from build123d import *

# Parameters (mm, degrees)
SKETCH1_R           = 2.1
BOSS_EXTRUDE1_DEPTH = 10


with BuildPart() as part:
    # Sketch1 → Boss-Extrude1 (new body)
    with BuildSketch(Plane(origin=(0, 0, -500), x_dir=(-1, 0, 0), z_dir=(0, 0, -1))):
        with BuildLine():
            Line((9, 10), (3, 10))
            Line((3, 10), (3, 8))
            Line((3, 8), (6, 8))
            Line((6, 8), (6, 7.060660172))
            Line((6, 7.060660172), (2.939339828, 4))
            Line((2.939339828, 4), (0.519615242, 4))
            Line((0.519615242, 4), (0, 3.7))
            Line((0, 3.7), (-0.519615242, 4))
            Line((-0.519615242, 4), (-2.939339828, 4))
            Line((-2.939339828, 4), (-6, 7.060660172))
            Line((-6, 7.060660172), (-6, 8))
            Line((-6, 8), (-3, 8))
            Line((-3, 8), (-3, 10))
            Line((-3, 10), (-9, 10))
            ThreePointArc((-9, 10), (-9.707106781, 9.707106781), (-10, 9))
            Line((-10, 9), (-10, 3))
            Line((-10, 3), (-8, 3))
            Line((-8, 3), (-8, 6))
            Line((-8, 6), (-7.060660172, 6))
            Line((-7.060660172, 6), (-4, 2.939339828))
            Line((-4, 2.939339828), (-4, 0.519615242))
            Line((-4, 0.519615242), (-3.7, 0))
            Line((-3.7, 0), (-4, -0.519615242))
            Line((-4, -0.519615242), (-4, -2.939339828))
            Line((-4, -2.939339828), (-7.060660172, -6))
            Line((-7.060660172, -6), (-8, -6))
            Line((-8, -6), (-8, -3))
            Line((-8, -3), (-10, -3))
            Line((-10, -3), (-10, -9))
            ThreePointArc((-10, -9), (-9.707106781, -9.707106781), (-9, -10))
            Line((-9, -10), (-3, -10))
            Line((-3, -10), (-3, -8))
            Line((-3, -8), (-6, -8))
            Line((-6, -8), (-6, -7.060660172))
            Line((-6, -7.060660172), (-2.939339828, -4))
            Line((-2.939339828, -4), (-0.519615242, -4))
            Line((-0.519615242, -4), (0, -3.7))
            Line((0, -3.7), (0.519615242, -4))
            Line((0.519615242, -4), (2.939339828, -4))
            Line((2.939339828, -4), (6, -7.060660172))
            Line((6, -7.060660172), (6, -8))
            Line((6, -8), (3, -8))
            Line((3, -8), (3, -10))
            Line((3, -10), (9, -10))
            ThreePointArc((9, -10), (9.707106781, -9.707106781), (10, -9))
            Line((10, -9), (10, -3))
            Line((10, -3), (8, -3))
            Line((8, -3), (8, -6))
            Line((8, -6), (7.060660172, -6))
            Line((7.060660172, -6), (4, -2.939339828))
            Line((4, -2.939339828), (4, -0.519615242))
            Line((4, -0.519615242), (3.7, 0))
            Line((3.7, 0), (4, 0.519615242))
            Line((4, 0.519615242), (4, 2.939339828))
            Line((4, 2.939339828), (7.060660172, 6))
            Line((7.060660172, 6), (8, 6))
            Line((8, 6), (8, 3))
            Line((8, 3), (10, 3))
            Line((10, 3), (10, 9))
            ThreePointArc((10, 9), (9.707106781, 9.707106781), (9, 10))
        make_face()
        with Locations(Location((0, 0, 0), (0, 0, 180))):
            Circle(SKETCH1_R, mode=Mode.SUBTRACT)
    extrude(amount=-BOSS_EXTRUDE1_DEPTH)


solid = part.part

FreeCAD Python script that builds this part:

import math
import FreeCAD as App
import Part
import Sketcher

V = App.Vector
Q = App.Units.Quantity

doc = App.newDocument("Part")
body = doc.addObject("PartDesign::Body", "Body")

sketch1 = body.newObject("Sketcher::SketchObject", "Sketch")
sketch1.AttachmentSupport = (doc.getObject("XY_Plane"), [""])
sketch1.MapMode = "FlatFace"
sketch1.AttachmentOffset = App.Placement(V(0, 0, -500), App.Rotation())
sketch1.addGeometry(Part.LineSegment(V(-9, 10, 0), V(-3, 10, 0)), False)
sketch1.addGeometry(Part.LineSegment(V(-3, 10, 0), V(-3, 8, 0)), False)
sketch1.addGeometry(Part.LineSegment(V(-3, 8, 0), V(-6, 8, 0)), False)
sketch1.addGeometry(Part.LineSegment(V(-6, 8, 0), V(-6, 7.06066, 0)), False)
sketch1.addGeometry(Part.LineSegment(V(-6, 7.06066, 0), V(-2.93934, 4, 0)), False)
sketch1.addGeometry(Part.LineSegment(V(-2.93934, 4, 0), V(-0.519615, 4, 0)), False)
sketch1.addGeometry(Part.LineSegment(V(-0.519615, 4, 0), V(0, 3.7, 0)), False)
sketch1.addGeometry(Part.LineSegment(V(0, 3.7, 0), V(0.519615, 4, 0)), False)
sketch1.addGeometry(Part.LineSegment(V(0.519615, 4, 0), V(2.93934, 4, 0)), False)
sketch1.addGeometry(Part.LineSegment(V(2.93934, 4, 0), V(6, 7.06066, 0)), False)
sketch1.addGeometry(Part.LineSegment(V(6, 7.06066, 0), V(6, 8, 0)), False)
sketch1.addGeometry(Part.LineSegment(V(6, 8, 0), V(3, 8, 0)), False)
sketch1.addGeometry(Part.LineSegment(V(3, 8, 0), V(3, 10, 0)), False)
sketch1.addGeometry(Part.LineSegment(V(3, 10, 0), V(9, 10, 0)), False)
sketch1.addGeometry(Part.ArcOfCircle(Part.Circle(V(9, 9, 0), V(0, 0, 1), 1), math.radians(0), math.radians(90)), False)
sketch1.addGeometry(Part.LineSegment(V(10, 9, 0), V(10, 3, 0)), False)
sketch1.addGeometry(Part.LineSegment(V(10, 3, 0), V(8, 3, 0)), False)
sketch1.addGeometry(Part.LineSegment(V(8, 3, 0), V(8, 6, 0)), False)
sketch1.addGeometry(Part.LineSegment(V(8, 6, 0), V(7.06066, 6, 0)), False)
sketch1.addGeometry(Part.LineSegment(V(7.06066, 6, 0), V(4, 2.93934, 0)), False)
sketch1.addGeometry(Part.LineSegment(V(4, 2.93934, 0), V(4, 0.519615, 0)), False)
sketch1.addGeometry(Part.LineSegment(V(4, 0.519615, 0), V(3.7, 0, 0)), False)
sketch1.addGeometry(Part.LineSegment(V(3.7, 0, 0), V(4, -0.519615, 0)), False)
sketch1.addGeometry(Part.LineSegment(V(4, -0.519615, 0), V(4, -2.93934, 0)), False)
sketch1.addGeometry(Part.LineSegment(V(4, -2.93934, 0), V(7.06066, -6, 0)), False)
sketch1.addGeometry(Part.LineSegment(V(7.06066, -6, 0), V(8, -6, 0)), False)
sketch1.addGeometry(Part.LineSegment(V(8, -6, 0), V(8, -3, 0)), False)
sketch1.addGeometry(Part.LineSegment(V(8, -3, 0), V(10, -3, 0)), False)
sketch1.addGeometry(Part.LineSegment(V(10, -3, 0), V(10, -9, 0)), False)
sketch1.addGeometry(Part.ArcOfCircle(Part.Circle(V(9, -9, 0), V(0, 0, 1), 1), math.radians(-90), math.radians(0)), False)
sketch1.addGeometry(Part.LineSegment(V(9, -10, 0), V(3, -10, 0)), False)
sketch1.addGeometry(Part.LineSegment(V(3, -10, 0), V(3, -8, 0)), False)
sketch1.addGeometry(Part.LineSegment(V(3, -8, 0), V(6, -8, 0)), False)
sketch1.addGeometry(Part.LineSegment(V(6, -8, 0), V(6, -7.06066, 0)), False)
sketch1.addGeometry(Part.LineSegment(V(6, -7.06066, 0), V(2.93934, -4, 0)), False)
sketch1.addGeometry(Part.LineSegment(V(2.93934, -4, 0), V(0.519615, -4, 0)), False)
sketch1.addGeometry(Part.LineSegment(V(0.519615, -4, 0), V(0, -3.7, 0)), False)
sketch1.addGeometry(Part.LineSegment(V(0, -3.7, 0), V(-0.519615, -4, 0)), False)
sketch1.addGeometry(Part.LineSegment(V(-0.519615, -4, 0), V(-2.93934, -4, 0)), False)
sketch1.addGeometry(Part.LineSegment(V(-2.93934, -4, 0), V(-6, -7.06066, 0)), False)
sketch1.addGeometry(Part.LineSegment(V(-6, -7.06066, 0), V(-6, -8, 0)), False)
sketch1.addGeometry(Part.LineSegment(V(-6, -8, 0), V(-3, -8, 0)), False)
sketch1.addGeometry(Part.LineSegment(V(-3, -8, 0), V(-3, -10, 0)), False)
sketch1.addGeometry(Part.LineSegment(V(-3, -10, 0), V(-9, -10, 0)), False)
sketch1.addGeometry(Part.ArcOfCircle(Part.Circle(V(-9, -9, 0), V(0, 0, 1), 1), math.radians(-180), math.radians(-90)), False)
sketch1.addGeometry(Part.LineSegment(V(-10, -9, 0), V(-10, -3, 0)), False)
sketch1.addGeometry(Part.LineSegment(V(-10, -3, 0), V(-8, -3, 0)), False)
sketch1.addGeometry(Part.LineSegment(V(-8, -3, 0), V(-8, -6, 0)), False)
sketch1.addGeometry(Part.LineSegment(V(-8, -6, 0), V(-7.06066, -6, 0)), False)
sketch1.addGeometry(Part.LineSegment(V(-7.06066, -6, 0), V(-4, -2.93934, 0)), False)
sketch1.addGeometry(Part.LineSegment(V(-4, -2.93934, 0), V(-4, -0.519615, 0)), False)
sketch1.addGeometry(Part.LineSegment(V(-4, -0.519615, 0), V(-3.7, 0, 0)), False)
sketch1.addGeometry(Part.LineSegment(V(-3.7, 0, 0), V(-4, 0.519615, 0)), False)
sketch1.addGeometry(Part.LineSegment(V(-4, 0.519615, 0), V(-4, 2.93934, 0)), False)
sketch1.addGeometry(Part.LineSegment(V(-4, 2.93934, 0), V(-7.06066, 6, 0)), False)
sketch1.addGeometry(Part.LineSegment(V(-7.06066, 6, 0), V(-8, 6, 0)), False)
sketch1.addGeometry(Part.LineSegment(V(-8, 6, 0), V(-8, 3, 0)), False)
sketch1.addGeometry(Part.LineSegment(V(-8, 3, 0), V(-10, 3, 0)), False)
sketch1.addGeometry(Part.LineSegment(V(-10, 3, 0), V(-10, 9, 0)), False)
sketch1.addGeometry(Part.ArcOfCircle(Part.Circle(V(-9, 9, 0), V(0, 0, 1), 1), math.radians(90), math.radians(180)), False)
sketch1.addGeometry(Part.Circle(V(0, 0, 0), V(0, 0, 1), 2.1), False)
sketch1.addConstraint(Sketcher.Constraint("Coincident", 0, 2, 1, 1))
sketch1.addConstraint(Sketcher.Constraint("Coincident", 1, 2, 2, 1))
sketch1.addConstraint(Sketcher.Constraint("Coincident", 2, 2, 3, 1))
sketch1.addConstraint(Sketcher.Constraint("Coincident", 3, 2, 4, 1))
sketch1.addConstraint(Sketcher.Constraint("Coincident", 4, 2, 5, 1))
sketch1.addConstraint(Sketcher.Constraint("Coincident", 5, 2, 6, 1))
sketch1.addConstraint(Sketcher.Constraint("Coincident", 6, 2, 7, 1))
sketch1.addConstraint(Sketcher.Constraint("Coincident", 7, 2, 8, 1))
sketch1.addConstraint(Sketcher.Constraint("Coincident", 8, 2, 9, 1))
sketch1.addConstraint(Sketcher.Constraint("Coincident", 9, 2, 10, 1))
sketch1.addConstraint(Sketcher.Constraint("Coincident", 10, 2, 11, 1))
sketch1.addConstraint(Sketcher.Constraint("Coincident", 11, 2, 12, 1))
sketch1.addConstraint(Sketcher.Constraint("Coincident", 12, 2, 13, 1))
sketch1.addConstraint(Sketcher.Constraint("Tangent", 13, 2, 14, 2))
sketch1.addConstraint(Sketcher.Constraint("Tangent", 14, 1, 15, 1))
sketch1.addConstraint(Sketcher.Constraint("Coincident", 15, 2, 16, 1))
sketch1.addConstraint(Sketcher.Constraint("Coincident", 16, 2, 17, 1))
sketch1.addConstraint(Sketcher.Constraint("Coincident", 17, 2, 18, 1))
sketch1.addConstraint(Sketcher.Constraint("Coincident", 18, 2, 19, 1))
sketch1.addConstraint(Sketcher.Constraint("Coincident", 19, 2, 20, 1))
sketch1.addConstraint(Sketcher.Constraint("Coincident", 20, 2, 21, 1))
sketch1.addConstraint(Sketcher.Constraint("Coincident", 21, 2, 22, 1))
sketch1.addConstraint(Sketcher.Constraint("Coincident", 22, 2, 23, 1))
sketch1.addConstraint(Sketcher.Constraint("Coincident", 23, 2, 24, 1))
sketch1.addConstraint(Sketcher.Constraint("Coincident", 24, 2, 25, 1))
sketch1.addConstraint(Sketcher.Constraint("Coincident", 25, 2, 26, 1))
sketch1.addConstraint(Sketcher.Constraint("Coincident", 26, 2, 27, 1))
sketch1.addConstraint(Sketcher.Constraint("Coincident", 27, 2, 28, 1))
sketch1.addConstraint(Sketcher.Constraint("Tangent", 28, 2, 29, 2))
sketch1.addConstraint(Sketcher.Constraint("Tangent", 29, 1, 30, 1))
sketch1.addConstraint(Sketcher.Constraint("Coincident", 30, 2, 31, 1))
sketch1.addConstraint(Sketcher.Constraint("Coincident", 31, 2, 32, 1))
sketch1.addConstraint(Sketcher.Constraint("Coincident", 32, 2, 33, 1))
sketch1.addConstraint(Sketcher.Constraint("Coincident", 33, 2, 34, 1))
sketch1.addConstraint(Sketcher.Constraint("Coincident", 34, 2, 35, 1))
sketch1.addConstraint(Sketcher.Constraint("Coincident", 35, 2, 36, 1))
sketch1.addConstraint(Sketcher.Constraint("Coincident", 36, 2, 37, 1))
sketch1.addConstraint(Sketcher.Constraint("Coincident", 37, 2, 38, 1))
sketch1.addConstraint(Sketcher.Constraint("Coincident", 38, 2, 39, 1))
sketch1.addConstraint(Sketcher.Constraint("Coincident", 39, 2, 40, 1))
sketch1.addConstraint(Sketcher.Constraint("Coincident", 40, 2, 41, 1))
sketch1.addConstraint(Sketcher.Constraint("Coincident", 41, 2, 42, 1))
sketch1.addConstraint(Sketcher.Constraint("Coincident", 42, 2, 43, 1))
sketch1.addConstraint(Sketcher.Constraint("Tangent", 43, 2, 44, 2))
sketch1.addConstraint(Sketcher.Constraint("Tangent", 44, 1, 45, 1))
sketch1.addConstraint(Sketcher.Constraint("Coincident", 45, 2, 46, 1))
sketch1.addConstraint(Sketcher.Constraint("Coincident", 46, 2, 47, 1))
sketch1.addConstraint(Sketcher.Constraint("Coincident", 47, 2, 48, 1))
sketch1.addConstraint(Sketcher.Constraint("Coincident", 48, 2, 49, 1))
sketch1.addConstraint(Sketcher.Constraint("Coincident", 49, 2, 50, 1))
sketch1.addConstraint(Sketcher.Constraint("Coincident", 50, 2, 51, 1))
sketch1.addConstraint(Sketcher.Constraint("Coincident", 51, 2, 52, 1))
sketch1.addConstraint(Sketcher.Constraint("Coincident", 52, 2, 53, 1))
sketch1.addConstraint(Sketcher.Constraint("Coincident", 53, 2, 54, 1))
sketch1.addConstraint(Sketcher.Constraint("Coincident", 54, 2, 55, 1))
sketch1.addConstraint(Sketcher.Constraint("Coincident", 55, 2, 56, 1))
sketch1.addConstraint(Sketcher.Constraint("Coincident", 56, 2, 57, 1))
sketch1.addConstraint(Sketcher.Constraint("Coincident", 57, 2, 58, 1))
sketch1.addConstraint(Sketcher.Constraint("Tangent", 58, 2, 59, 2))
sketch1.addConstraint(Sketcher.Constraint("Tangent", 59, 1, 0, 1))
sketch1.addConstraint(Sketcher.Constraint("Horizontal", 0))
sketch1.addConstraint(Sketcher.Constraint("Vertical", 1))
sketch1.addConstraint(Sketcher.Constraint("Horizontal", 2))
sketch1.addConstraint(Sketcher.Constraint("Vertical", 3))
sketch1.addConstraint(Sketcher.Constraint("Horizontal", 5))
sketch1.addConstraint(Sketcher.Constraint("Horizontal", 8))
sketch1.addConstraint(Sketcher.Constraint("Vertical", 10))
sketch1.addConstraint(Sketcher.Constraint("Horizontal", 11))
sketch1.addConstraint(Sketcher.Constraint("Vertical", 12))
sketch1.addConstraint(Sketcher.Constraint("Horizontal", 13))
sketch1.addConstraint(Sketcher.Constraint("Vertical", 15))
sketch1.addConstraint(Sketcher.Constraint("Horizontal", 16))
sketch1.addConstraint(Sketcher.Constraint("Vertical", 17))
sketch1.addConstraint(Sketcher.Constraint("Horizontal", 18))
sketch1.addConstraint(Sketcher.Constraint("Vertical", 20))
sketch1.addConstraint(Sketcher.Constraint("Vertical", 23))
sketch1.addConstraint(Sketcher.Constraint("Horizontal", 25))
sketch1.addConstraint(Sketcher.Constraint("Vertical", 26))
sketch1.addConstraint(Sketcher.Constraint("Horizontal", 27))
sketch1.addConstraint(Sketcher.Constraint("Vertical", 28))
sketch1.addConstraint(Sketcher.Constraint("Horizontal", 30))
sketch1.addConstraint(Sketcher.Constraint("Vertical", 31))
sketch1.addConstraint(Sketcher.Constraint("Horizontal", 32))
sketch1.addConstraint(Sketcher.Constraint("Vertical", 33))
sketch1.addConstraint(Sketcher.Constraint("Horizontal", 35))
sketch1.addConstraint(Sketcher.Constraint("Horizontal", 38))
sketch1.addConstraint(Sketcher.Constraint("Vertical", 40))
sketch1.addConstraint(Sketcher.Constraint("Horizontal", 41))
sketch1.addConstraint(Sketcher.Constraint("Vertical", 42))
sketch1.addConstraint(Sketcher.Constraint("Horizontal", 43))
sketch1.addConstraint(Sketcher.Constraint("Vertical", 45))
sketch1.addConstraint(Sketcher.Constraint("Horizontal", 46))
sketch1.addConstraint(Sketcher.Constraint("Vertical", 47))
sketch1.addConstraint(Sketcher.Constraint("Horizontal", 48))
sketch1.addConstraint(Sketcher.Constraint("Vertical", 50))
sketch1.addConstraint(Sketcher.Constraint("Vertical", 53))
sketch1.addConstraint(Sketcher.Constraint("Horizontal", 55))
sketch1.addConstraint(Sketcher.Constraint("Vertical", 56))
sketch1.addConstraint(Sketcher.Constraint("Horizontal", 57))
sketch1.addConstraint(Sketcher.Constraint("Vertical", 58))
sketch1.addConstraint(Sketcher.Constraint("Coincident", 60, 3, -1, 1))
sketch1.addConstraint(Sketcher.Constraint("Equal", 14, 29))
sketch1.addConstraint(Sketcher.Constraint("Equal", 29, 44))
sketch1.addConstraint(Sketcher.Constraint("Equal", 44, 59))
sketch1.addConstraint(Sketcher.Constraint("Symmetric", 14, 3, 44, 3, -1, 1))
sketch1.addConstraint(Sketcher.Constraint("Symmetric", 29, 3, 59, 3, -1, 1))
sketch1.addConstraint(Sketcher.Constraint("Symmetric", 1, 2, 31, 2, -1, 1))
sketch1.addConstraint(Sketcher.Constraint("Symmetric", 3, 2, 33, 2, -1, 1))
sketch1.addConstraint(Sketcher.Constraint("Symmetric", 4, 2, 34, 2, -1, 1))
sketch1.addConstraint(Sketcher.Constraint("Symmetric", 6, 2, 36, 2, -1, 1))
sketch1.addConstraint(Sketcher.Constraint("Symmetric", 7, 2, 37, 2, -1, 1))
sketch1.addConstraint(Sketcher.Constraint("Symmetric", 9, 2, 39, 2, -1, 1))
sketch1.addConstraint(Sketcher.Constraint("Symmetric", 11, 2, 41, 2, -1, 1))
sketch1.addConstraint(Sketcher.Constraint("Symmetric", 16, 2, 46, 2, -1, 1))
sketch1.addConstraint(Sketcher.Constraint("Symmetric", 18, 2, 48, 2, -1, 1))
sketch1.addConstraint(Sketcher.Constraint("Symmetric", 19, 2, 49, 2, -1, 1))
sketch1.addConstraint(Sketcher.Constraint("Symmetric", 21, 2, 51, 2, -1, 1))
sketch1.addConstraint(Sketcher.Constraint("Symmetric", 22, 2, 52, 2, -1, 1))
sketch1.addConstraint(Sketcher.Constraint("Symmetric", 24, 2, 54, 2, -1, 1))
sketch1.addConstraint(Sketcher.Constraint("Symmetric", 26, 2, 56, 2, -1, 1))
sketch1.addConstraint(Sketcher.Constraint("Symmetric", 29, 3, 44, 3, -2))
sketch1.addConstraint(Sketcher.Constraint("Symmetric", 5, 2, 7, 2, -2))
sketch1.addConstraint(Sketcher.Constraint("Symmetric", 3, 2, 9, 2, -2))
sketch1.addConstraint(Sketcher.Constraint("Symmetric", 1, 2, 11, 2, -2))
sketch1.addConstraint(Sketcher.Constraint("Symmetric", 26, 2, 46, 2, -2))
sketch1.addConstraint(Sketcher.Constraint("Symmetric", 24, 2, 48, 2, -2))
sketch1.addConstraint(Sketcher.Constraint("Symmetric", 23, 2, 49, 2, -2))
sketch1.addConstraint(Sketcher.Constraint("PointOnObject", 6, 2, -2))
sketch1.addConstraint(Sketcher.Constraint("PointOnObject", 21, 2, -1))
sketch1.addConstraint(Sketcher.Constraint("Perpendicular", 4, 9))
sketch1.addConstraint(Sketcher.Constraint("Parallel", 9, 19))
sketch1.addConstraint(Sketcher.Constraint("Perpendicular", 6, 21))
sketch1.addConstraint(Sketcher.Constraint("Perpendicular", 7, 22))
sketch1.addConstraint(Sketcher.Constraint("Perpendicular", 19, 24))
sketch1.addConstraint(Sketcher.Constraint("Perpendicular", 21, 36))
sketch1.addConstraint(Sketcher.Constraint("Perpendicular", 34, 39))
sketch1.addConstraint(Sketcher.Constraint("Perpendicular", 36, 51))
sketch1.addConstraint(Sketcher.Constraint("Perpendicular", 49, 54))
sketch1.addConstraint(Sketcher.Constraint("Equal", 57, 1))
sketch1.addConstraint(Sketcher.Constraint("Equal", 55, 3))
sketch1.addConstraint(Sketcher.Constraint("Equal", 43, 15))
sketch1.addConstraint(Sketcher.Constraint("Equal", 41, 17))
sketch1.addConstraint(Sketcher.Constraint("Equal", 38, 20))
sketch1.addConstraint(Sketcher.Constraint("Equal", 9, 19))
sketch1.addConstraint(Sketcher.Constraint("Equal", 7, 21))
sketch1.addConstraint(Sketcher.Constraint("Radius", 14, 1.0))
sketch1.addConstraint(Sketcher.Constraint("Diameter", 60, 4.2))
sketch1.addConstraint(Sketcher.Constraint("DistanceX", 0, 1, 0, 2, 6.0))
sketch1.addConstraint(Sketcher.Constraint("DistanceX", 2, 2, 2, 1, 3.0))
sketch1.addConstraint(Sketcher.Constraint("DistanceX", 16, 2, 16, 1, 2.0))
sketch1.addConstraint(Sketcher.Constraint("Angle", 6, Q("-30 deg")))
sketch1.addConstraint(Sketcher.Constraint("DistanceX", -1, 1, 14, 3, 9.0))
sketch1.addConstraint(Sketcher.Constraint("DistanceY", -1, 1, 4, 2, 4.0))
sketch1.addConstraint(Sketcher.Constraint("Distance", 6, 0.6))
sketch1.addConstraint(Sketcher.Constraint("DistanceX", 18, 2, 18, 1, 0.93934))
pad1 = body.newObject("PartDesign::Pad", "Pad")
pad1.Profile = sketch1
pad1.Length = 10

doc.recompute()
